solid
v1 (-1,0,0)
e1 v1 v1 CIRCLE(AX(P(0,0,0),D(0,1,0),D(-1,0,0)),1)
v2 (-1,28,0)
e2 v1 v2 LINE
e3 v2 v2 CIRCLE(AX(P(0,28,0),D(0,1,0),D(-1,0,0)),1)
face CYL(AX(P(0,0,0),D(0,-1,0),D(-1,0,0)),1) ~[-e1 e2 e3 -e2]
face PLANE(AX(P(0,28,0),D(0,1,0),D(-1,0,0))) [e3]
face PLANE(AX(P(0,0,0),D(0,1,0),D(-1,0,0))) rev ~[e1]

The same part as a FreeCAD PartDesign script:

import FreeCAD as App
import Part
import Sketcher

doc = App.newDocument("Part")
body = doc.addObject("PartDesign::Body", "Body")

sketch1 = body.newObject("Sketcher::SketchObject", "Sketch")
sketch1.AttachmentSupport = (doc.getObject("XZ_Plane"), [""])
sketch1.MapMode = "FlatFace"
sketch1.addGeometry(Part.Circle(App.Vector(0, 0, 0), App.Vector(0, 0, 1), 1), False)
sketch1.addConstraint(Sketcher.Constraint("Coincident", 0, 3, -1, 1))
sketch1.addConstraint(Sketcher.Constraint("Diameter", 0, 2.0))
pad1 = body.newObject("PartDesign::Pad", "Pad")
pad1.Profile = sketch1
pad1.Length = 28
pad1.Reversed = True

doc.recompute()
